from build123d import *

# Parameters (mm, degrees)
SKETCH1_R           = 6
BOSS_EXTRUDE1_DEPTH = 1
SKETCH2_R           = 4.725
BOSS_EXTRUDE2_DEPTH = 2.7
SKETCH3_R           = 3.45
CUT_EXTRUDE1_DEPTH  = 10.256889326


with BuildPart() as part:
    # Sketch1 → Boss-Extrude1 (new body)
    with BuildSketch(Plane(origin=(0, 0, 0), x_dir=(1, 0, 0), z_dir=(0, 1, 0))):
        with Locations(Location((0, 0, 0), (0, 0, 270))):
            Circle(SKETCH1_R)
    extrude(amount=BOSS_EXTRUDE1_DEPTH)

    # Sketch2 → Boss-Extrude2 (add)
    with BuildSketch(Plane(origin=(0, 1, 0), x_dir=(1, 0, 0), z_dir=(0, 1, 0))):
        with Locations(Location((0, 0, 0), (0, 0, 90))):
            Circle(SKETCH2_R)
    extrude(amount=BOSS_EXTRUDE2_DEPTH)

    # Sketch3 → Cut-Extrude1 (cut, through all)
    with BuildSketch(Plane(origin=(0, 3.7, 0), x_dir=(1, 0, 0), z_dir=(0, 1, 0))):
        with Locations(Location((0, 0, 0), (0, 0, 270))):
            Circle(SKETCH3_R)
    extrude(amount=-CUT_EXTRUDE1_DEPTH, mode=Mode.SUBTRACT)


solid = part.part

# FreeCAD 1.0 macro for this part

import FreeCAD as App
import Part
import Sketcher
from FreeCAD import Vector
Q = App.Units.Quantity

doc = App.newDocument("Part")
body = doc.addObject("PartDesign::Body", "Body")

# Sketch on XZ plane
sketch1 = body.newObject("Sketcher::SketchObject", "Sketch")
sketch1.AttachmentSupport = (doc.getObject("XZ_Plane"), [""])
sketch1.MapMode = "FlatFace"
sketch1.addGeometry(Part.Circle(Vector(0, 0, 0), Vector(0, 0, 1), 6), False)
sketch1.addConstraint([
    Sketcher.Constraint("Coincident", 0, 3, -1, 1),
    Sketcher.Constraint("Diameter", 0, Q("12 mm")),
])
pad1 = body.newObject("PartDesign::Pad", "Pad")
pad1.Profile = sketch1
pad1.Length = 1
pad1.Reversed = True

# Sketch on XZ plane
sketch2 = body.newObject("Sketcher::SketchObject", "Sketch001")
sketch2.AttachmentSupport = (doc.getObject("XZ_Plane"), [""])
sketch2.MapMode = "FlatFace"
sketch2.AttachmentOffset = App.Placement(Vector(0, 0, -1), App.Rotation())
sketch2.addGeometry(Part.Circle(Vector(0, 0, 0), Vector(0, 0, 1), 4.725), False)
sketch2.addConstraint([
    Sketcher.Constraint("Coincident", 0, 3, -1, 1),
    Sketcher.Constraint("Diameter", 0, Q("9.45 mm")),
])
pad2 = body.newObject("PartDesign::Pad", "Pad001")
pad2.Profile = sketch2
pad2.Length = 2.7
pad2.Reversed = True

# Sketch on XZ plane
sketch3 = body.newObject("Sketcher::SketchObject", "Sketch002")
sketch3.AttachmentSupport = (doc.getObject("XZ_Plane"), [""])
sketch3.MapMode = "FlatFace"
sketch3.AttachmentOffset = App.Placement(Vector(0, 0, -3.7), App.Rotation())
sketch3.addGeometry(Part.Circle(Vector(0, 0, 0), Vector(0, 0, 1), 3.45), False)
sketch3.addConstraint([
    Sketcher.Constraint("Coincident", 0, 3, -1, 1),
    Sketcher.Constraint("Diameter", 0, Q("6.9 mm")),
])
pocket1 = body.newObject("PartDesign::Pocket", "Pocket")
pocket1.Profile = sketch3
pocket1.Type = "ThroughAll"
pocket1.Reversed = True

doc.recompute()
